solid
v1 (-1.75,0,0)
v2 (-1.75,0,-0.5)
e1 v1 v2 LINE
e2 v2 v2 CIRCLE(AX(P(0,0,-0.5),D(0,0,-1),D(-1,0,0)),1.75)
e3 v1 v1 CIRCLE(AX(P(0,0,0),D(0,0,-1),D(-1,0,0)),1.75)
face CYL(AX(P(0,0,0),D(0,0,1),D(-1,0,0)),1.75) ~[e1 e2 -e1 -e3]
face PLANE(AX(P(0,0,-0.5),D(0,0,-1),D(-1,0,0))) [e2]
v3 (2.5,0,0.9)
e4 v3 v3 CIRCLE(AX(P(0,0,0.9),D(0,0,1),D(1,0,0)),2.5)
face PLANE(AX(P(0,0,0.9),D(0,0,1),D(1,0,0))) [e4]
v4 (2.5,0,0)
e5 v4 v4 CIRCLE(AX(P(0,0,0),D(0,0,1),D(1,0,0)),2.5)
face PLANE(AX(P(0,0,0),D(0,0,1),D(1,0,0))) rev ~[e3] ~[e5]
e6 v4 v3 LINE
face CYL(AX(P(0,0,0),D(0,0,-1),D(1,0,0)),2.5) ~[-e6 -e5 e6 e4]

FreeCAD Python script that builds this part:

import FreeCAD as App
import Part
import Sketcher

V = App.Vector

doc = App.newDocument("Part")
body = doc.addObject("PartDesign::Body", "Body")

sketch1 = body.newObject("Sketcher::SketchObject", "Sketch")
sketch1.AttachmentSupport = (doc.getObject("XY_Plane"), [""])
sketch1.MapMode = "FlatFace"
sketch1.addGeometry(Part.Circle(V(0, 0, 0), V(0, 0, 1), 2.5), False)
sketch1.addConstraint([
    Sketcher.Constraint("Coincident", 0, 3, -1, 1),
    Sketcher.Constraint("Diameter", 0, 5.0),
])
pad1 = body.newObject("PartDesign::Pad", "Pad")
pad1.Profile = sketch1
pad1.Length = 0.9

sketch2 = body.newObject("Sketcher::SketchObject", "Sketch001")
sketch2.AttachmentSupport = (doc.getObject("XY_Plane"), [""])
sketch2.MapMode = "FlatFace"
sketch2.addGeometry(Part.Circle(V(0, 0, 0), V(0, 0, 1), 1.75), False)
sketch2.addConstraint([
    Sketcher.Constraint("Coincident", 0, 3, -1, 1),
    Sketcher.Constraint("Diameter", 0, 3.5),
])
pad2 = body.newObject("PartDesign::Pad", "Pad001")
pad2.Profile = sketch2
pad2.Length = 0.5
pad2.Reversed = True

doc.recompute()
